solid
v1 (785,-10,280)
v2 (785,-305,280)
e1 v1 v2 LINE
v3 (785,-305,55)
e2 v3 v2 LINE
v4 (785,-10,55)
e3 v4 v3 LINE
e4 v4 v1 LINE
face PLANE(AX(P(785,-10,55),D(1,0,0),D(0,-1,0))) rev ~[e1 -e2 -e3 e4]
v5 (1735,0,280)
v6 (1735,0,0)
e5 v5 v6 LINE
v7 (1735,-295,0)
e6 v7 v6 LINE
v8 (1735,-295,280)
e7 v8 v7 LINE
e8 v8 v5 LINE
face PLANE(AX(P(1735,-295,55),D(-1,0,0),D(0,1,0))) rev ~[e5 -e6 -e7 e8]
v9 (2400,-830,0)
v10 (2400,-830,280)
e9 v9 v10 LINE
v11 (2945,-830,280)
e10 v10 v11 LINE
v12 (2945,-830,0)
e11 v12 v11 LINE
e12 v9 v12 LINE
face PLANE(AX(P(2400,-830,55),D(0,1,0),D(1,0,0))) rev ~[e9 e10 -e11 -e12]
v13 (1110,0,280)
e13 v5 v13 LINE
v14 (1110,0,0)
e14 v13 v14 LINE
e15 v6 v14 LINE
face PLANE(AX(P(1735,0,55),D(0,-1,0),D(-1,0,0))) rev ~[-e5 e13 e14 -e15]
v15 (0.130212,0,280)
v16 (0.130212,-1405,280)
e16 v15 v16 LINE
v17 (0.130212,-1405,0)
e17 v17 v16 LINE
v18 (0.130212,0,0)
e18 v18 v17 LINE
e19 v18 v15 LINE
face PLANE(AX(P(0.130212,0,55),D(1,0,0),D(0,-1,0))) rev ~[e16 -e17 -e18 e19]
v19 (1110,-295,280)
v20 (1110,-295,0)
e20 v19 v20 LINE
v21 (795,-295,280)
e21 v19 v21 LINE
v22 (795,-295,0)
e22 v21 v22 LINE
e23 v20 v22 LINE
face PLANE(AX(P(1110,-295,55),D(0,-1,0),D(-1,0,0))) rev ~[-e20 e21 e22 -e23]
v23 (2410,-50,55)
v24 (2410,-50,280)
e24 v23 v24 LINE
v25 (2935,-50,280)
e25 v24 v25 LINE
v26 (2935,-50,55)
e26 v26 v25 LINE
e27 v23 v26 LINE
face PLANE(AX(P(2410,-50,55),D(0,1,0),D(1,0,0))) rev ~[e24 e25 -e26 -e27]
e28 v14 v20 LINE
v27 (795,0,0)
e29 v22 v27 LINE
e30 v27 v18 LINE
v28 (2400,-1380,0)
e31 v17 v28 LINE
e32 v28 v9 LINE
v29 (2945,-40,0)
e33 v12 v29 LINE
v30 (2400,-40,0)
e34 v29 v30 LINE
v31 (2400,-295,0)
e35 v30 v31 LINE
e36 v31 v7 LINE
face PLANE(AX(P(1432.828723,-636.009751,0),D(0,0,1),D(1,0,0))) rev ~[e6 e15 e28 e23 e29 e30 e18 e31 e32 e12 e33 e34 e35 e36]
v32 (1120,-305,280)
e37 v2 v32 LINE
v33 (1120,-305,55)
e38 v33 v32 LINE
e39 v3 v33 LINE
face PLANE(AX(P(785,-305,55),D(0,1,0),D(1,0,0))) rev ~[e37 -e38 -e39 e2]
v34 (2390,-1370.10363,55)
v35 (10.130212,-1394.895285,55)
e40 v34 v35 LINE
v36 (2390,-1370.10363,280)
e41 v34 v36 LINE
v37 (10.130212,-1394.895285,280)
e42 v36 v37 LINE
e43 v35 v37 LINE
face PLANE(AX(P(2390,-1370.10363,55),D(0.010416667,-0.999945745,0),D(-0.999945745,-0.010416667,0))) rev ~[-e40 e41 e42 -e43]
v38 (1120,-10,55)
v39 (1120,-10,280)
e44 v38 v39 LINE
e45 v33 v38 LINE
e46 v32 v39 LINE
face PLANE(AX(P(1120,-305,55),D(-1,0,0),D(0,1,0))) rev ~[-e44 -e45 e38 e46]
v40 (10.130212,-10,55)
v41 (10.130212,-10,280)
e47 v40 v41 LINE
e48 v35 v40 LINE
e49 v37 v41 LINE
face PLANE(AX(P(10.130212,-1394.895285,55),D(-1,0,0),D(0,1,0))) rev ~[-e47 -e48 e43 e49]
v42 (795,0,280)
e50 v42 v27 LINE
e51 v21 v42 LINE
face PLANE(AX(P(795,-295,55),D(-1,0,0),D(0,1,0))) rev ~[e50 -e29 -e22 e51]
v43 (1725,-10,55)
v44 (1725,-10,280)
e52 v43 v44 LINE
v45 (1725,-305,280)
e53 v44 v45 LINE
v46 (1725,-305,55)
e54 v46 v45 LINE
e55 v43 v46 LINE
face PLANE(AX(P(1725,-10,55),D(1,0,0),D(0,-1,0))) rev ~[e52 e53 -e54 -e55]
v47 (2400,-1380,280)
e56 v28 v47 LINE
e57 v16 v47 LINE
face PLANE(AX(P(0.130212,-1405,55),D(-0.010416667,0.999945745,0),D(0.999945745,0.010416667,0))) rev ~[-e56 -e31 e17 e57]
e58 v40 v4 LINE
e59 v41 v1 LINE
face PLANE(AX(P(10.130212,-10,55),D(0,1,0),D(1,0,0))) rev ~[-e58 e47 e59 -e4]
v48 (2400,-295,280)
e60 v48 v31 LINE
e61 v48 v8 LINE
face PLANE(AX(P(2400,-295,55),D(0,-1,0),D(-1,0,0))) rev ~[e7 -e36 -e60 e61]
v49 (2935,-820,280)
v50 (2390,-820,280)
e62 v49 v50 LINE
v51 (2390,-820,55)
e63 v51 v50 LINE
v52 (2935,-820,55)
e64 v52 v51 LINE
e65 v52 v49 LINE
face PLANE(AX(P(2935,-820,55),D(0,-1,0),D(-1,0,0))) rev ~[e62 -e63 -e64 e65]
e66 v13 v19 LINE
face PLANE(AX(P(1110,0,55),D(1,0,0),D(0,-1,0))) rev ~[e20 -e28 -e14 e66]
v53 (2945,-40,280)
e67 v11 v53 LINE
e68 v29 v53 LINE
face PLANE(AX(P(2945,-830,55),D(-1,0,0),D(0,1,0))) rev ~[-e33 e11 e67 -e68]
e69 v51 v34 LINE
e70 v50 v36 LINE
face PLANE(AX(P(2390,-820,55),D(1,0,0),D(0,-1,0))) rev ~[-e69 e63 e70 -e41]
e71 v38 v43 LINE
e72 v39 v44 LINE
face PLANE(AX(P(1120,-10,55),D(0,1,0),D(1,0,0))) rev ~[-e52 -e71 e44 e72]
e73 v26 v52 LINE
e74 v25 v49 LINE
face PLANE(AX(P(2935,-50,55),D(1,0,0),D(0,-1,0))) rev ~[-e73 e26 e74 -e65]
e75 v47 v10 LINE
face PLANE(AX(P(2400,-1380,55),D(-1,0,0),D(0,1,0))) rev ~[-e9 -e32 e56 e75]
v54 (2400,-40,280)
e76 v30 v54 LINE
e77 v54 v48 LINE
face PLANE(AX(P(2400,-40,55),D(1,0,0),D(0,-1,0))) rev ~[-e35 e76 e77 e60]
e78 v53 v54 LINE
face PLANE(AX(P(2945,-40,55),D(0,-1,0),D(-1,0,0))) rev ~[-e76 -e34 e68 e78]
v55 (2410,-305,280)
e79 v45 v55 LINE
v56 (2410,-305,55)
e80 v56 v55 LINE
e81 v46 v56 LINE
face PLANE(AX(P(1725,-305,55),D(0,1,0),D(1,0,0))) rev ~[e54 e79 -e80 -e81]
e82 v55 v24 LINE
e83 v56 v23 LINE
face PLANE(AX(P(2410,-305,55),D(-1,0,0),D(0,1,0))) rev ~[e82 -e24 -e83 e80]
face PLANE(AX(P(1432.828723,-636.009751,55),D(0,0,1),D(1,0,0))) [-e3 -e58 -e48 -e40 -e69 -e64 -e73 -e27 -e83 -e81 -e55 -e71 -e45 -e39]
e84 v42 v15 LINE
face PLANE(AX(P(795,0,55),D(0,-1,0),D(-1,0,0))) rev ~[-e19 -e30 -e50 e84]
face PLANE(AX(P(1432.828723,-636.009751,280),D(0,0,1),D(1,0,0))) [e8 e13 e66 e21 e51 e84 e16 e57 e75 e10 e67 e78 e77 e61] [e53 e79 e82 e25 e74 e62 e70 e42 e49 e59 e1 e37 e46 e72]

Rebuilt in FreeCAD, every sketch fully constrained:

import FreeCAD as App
import Part
import Sketcher

V = App.Vector
Q = App.Units.Quantity

doc = App.newDocument("Part")
body = doc.addObject("PartDesign::Body", "Body")

# Sketch on XY plane
sketch1 = body.newObject("Sketcher::SketchObject", "Sketch")
sketch1.AttachmentSupport = (doc.getObject("XY_Plane"), [""])
sketch1.MapMode = "FlatFace"
sketch1.addGeometry([
    Part.LineSegment(V(795, 0, 0), V(0.130212, 0, 0)),  # 0
    Part.LineSegment(V(0.130212, 0, 0), V(0.130212, -1405, 0)),  # 1
    Part.LineSegment(V(0.130212, -1405, 0), V(2400, -1380, 0)),  # 2
    Part.LineSegment(V(2400, -1380, 0), V(2400, -830, 0)),  # 3
    Part.LineSegment(V(2400, -830, 0), V(2945, -830, 0)),  # 4
    Part.LineSegment(V(2945, -830, 0), V(2945, -40, 0)),  # 5
    Part.LineSegment(V(2945, -40, 0), V(2400, -40, 0)),  # 6
    Part.LineSegment(V(2400, -40, 0), V(2400, -295, 0)),  # 7
    Part.LineSegment(V(2400, -295, 0), V(1735, -295, 0)),  # 8
    Part.LineSegment(V(1735, -295, 0), V(1735, 0, 0)),  # 9
    Part.LineSegment(V(1735, 0, 0), V(1110, 0, 0)),  # 10
    Part.LineSegment(V(1110, 0, 0), V(1110, -295, 0)),  # 11
    Part.LineSegment(V(1110, -295, 0), V(795, -295, 0)),  # 12
    Part.LineSegment(V(795, -295, 0), V(795, 0, 0)),  # 13
], False)
sketch1.addConstraint([
    Sketcher.Constraint("Coincident", 0, 2, 1, 1),
    Sketcher.Constraint("Coincident", 1, 2, 2, 1),
    Sketcher.Constraint("Coincident", 2, 2, 3, 1),
    Sketcher.Constraint("Coincident", 3, 2, 4, 1),
    Sketcher.Constraint("Coincident", 4, 2, 5, 1),
    Sketcher.Constraint("Coincident", 5, 2, 6, 1),
    Sketcher.Constraint("Coincident", 6, 2, 7, 1),
    Sketcher.Constraint("Coincident", 7, 2, 8, 1),
    Sketcher.Constraint("Coincident", 8, 2, 9, 1),
    Sketcher.Constraint("Coincident", 9, 2, 10, 1),
    Sketcher.Constraint("Coincident", 10, 2, 11, 1),
    Sketcher.Constraint("Coincident", 11, 2, 12, 1),
    Sketcher.Constraint("Coincident", 12, 2, 13, 1),
    Sketcher.Constraint("Coincident", 13, 2, 0, 1),
    Sketcher.Constraint("Horizontal", 0),
    Sketcher.Constraint("Vertical", 1),
    Sketcher.Constraint("Vertical", 3),
    Sketcher.Constraint("Horizontal", 4),
    Sketcher.Constraint("Vertical", 5),
    Sketcher.Constraint("Horizontal", 6),
    Sketcher.Constraint("Vertical", 7),
    Sketcher.Constraint("Horizontal", 8),
    Sketcher.Constraint("Vertical", 9),
    Sketcher.Constraint("Horizontal", 10),
    Sketcher.Constraint("Vertical", 11),
    Sketcher.Constraint("Horizontal", 12),
    Sketcher.Constraint("Vertical", 13),
    Sketcher.Constraint("PointOnObject", 0, 2, -1),
    Sketcher.Constraint("PointOnObject", 9, 2, -1),
    Sketcher.Constraint("Horizontal", 8, 2, 11, 2),
    Sketcher.Constraint("Vertical", 3, 2, 6, 2),
    Sketcher.Constraint("DistanceX", 4, 1, 4, 2, Q("545 mm")),
    Sketcher.Constraint("DistanceX", 8, 2, 8, 1, Q("665 mm")),
    Sketcher.Constraint("DistanceX", 10, 2, 10, 1, Q("625 mm")),
    Sketcher.Constraint("DistanceX", 12, 2, 12, 1, Q("315 mm")),
    Sketcher.Constraint("DistanceY", 1, 2, 1, 1, Q("1405 mm")),
    Sketcher.Constraint("DistanceY", 3, 1, 3, 2, Q("550 mm")),
    Sketcher.Constraint("DistanceY", 5, 1, 5, 2, Q("790 mm")),
    Sketcher.Constraint("DistanceY", 7, 2, 7, 1, Q("255 mm")),
    Sketcher.Constraint("DistanceY", 9, 1, 9, 2, Q("295 mm")),
    Sketcher.Constraint("Distance", 2, Q("2400 mm")),
    Sketcher.Constraint("DistanceX", -1, 1, 2, 2, Q("2400 mm")),
])
pad1 = body.newObject("PartDesign::Pad", "Pad")
pad1.Profile = sketch1
pad1.Length = 55

# Sketch on XY plane
sketch2 = body.newObject("Sketcher::SketchObject", "Sketch001")
sketch2.AttachmentSupport = (doc.getObject("XY_Plane"), [""])
sketch2.MapMode = "FlatFace"
sketch2.AttachmentOffset = App.Placement(V(0, 0, 55), App.Rotation())
sketch2.addGeometry([
    Part.LineSegment(V(795, 0, 0), V(0.130212, 0, 0)),  # 0
    Part.LineSegment(V(0.130212, 0, 0), V(0.130212, -1405, 0)),  # 1
    Part.LineSegment(V(0.130212, -1405, 0), V(2400, -1380, 0)),  # 2
    Part.LineSegment(V(2400, -1380, 0), V(2400, -830, 0)),  # 3
    Part.LineSegment(V(2400, -830, 0), V(2945, -830, 0)),  # 4
    Part.LineSegment(V(2945, -830, 0), V(2945, -40, 0)),  # 5
    Part.LineSegment(V(2945, -40, 0), V(2400, -40, 0)),  # 6
    Part.LineSegment(V(2400, -40, 0), V(2400, -295, 0)),  # 7
    Part.LineSegment(V(2400, -295, 0), V(1735, -295, 0)),  # 8
    Part.LineSegment(V(1735, -295, 0), V(1735, 0, 0)),  # 9
    Part.LineSegment(V(1735, 0, 0), V(1110, 0, 0)),  # 10
    Part.LineSegment(V(1110, 0, 0), V(1110, -295, 0)),  # 11
    Part.LineSegment(V(1110, -295, 0), V(795, -295, 0)),  # 12
    Part.LineSegment(V(795, -295, 0), V(795, 0, 0)),  # 13
    Part.LineSegment(V(10.130212, -1394.895285, 0), V(10.130212, -10, 0)),  # 14
    Part.LineSegment(V(10.130212, -10, 0), V(785, -10, 0)),  # 15
    Part.LineSegment(V(785, -10, 0), V(785, -305, 0)),  # 16
    Part.LineSegment(V(785, -305, 0), V(1120, -305, 0)),  # 17
    Part.LineSegment(V(1120, -305, 0), V(1120, -10, 0)),  # 18
    Part.LineSegment(V(1120, -10, 0), V(1725, -10, 0)),  # 19
    Part.LineSegment(V(1725, -10, 0), V(1725, -305, 0)),  # 20
    Part.LineSegment(V(1725, -305, 0), V(2410, -305, 0)),  # 21
    Part.LineSegment(V(2410, -305, 0), V(2410, -50, 0)),  # 22
    Part.LineSegment(V(2410, -50, 0), V(2935, -50, 0)),  # 23
    Part.LineSegment(V(2935, -50, 0), V(2935, -820, 0)),  # 24
    Part.LineSegment(V(2935, -820, 0), V(2390, -820, 0)),  # 25
    Part.LineSegment(V(2390, -820, 0), V(2390, -1370.10363, 0)),  # 26
    Part.LineSegment(V(2390, -1370.10363, 0), V(10.130212, -1394.895285, 0)),  # 27
], False)
sketch2.addConstraint([
    Sketcher.Constraint("Coincident", 0, 2, 1, 1),
    Sketcher.Constraint("Coincident", 1, 2, 2, 1),
    Sketcher.Constraint("Coincident", 2, 2, 3, 1),
    Sketcher.Constraint("Coincident", 3, 2, 4, 1),
    Sketcher.Constraint("Coincident", 4, 2, 5, 1),
    Sketcher.Constraint("Coincident", 5, 2, 6, 1),
    Sketcher.Constraint("Coincident", 6, 2, 7, 1),
    Sketcher.Constraint("Coincident", 7, 2, 8, 1),
    Sketcher.Constraint("Coincident", 8, 2, 9, 1),
    Sketcher.Constraint("Coincident", 9, 2, 10, 1),
    Sketcher.Constraint("Coincident", 10, 2, 11, 1),
    Sketcher.Constraint("Coincident", 11, 2, 12, 1),
    Sketcher.Constraint("Coincident", 12, 2, 13, 1),
    Sketcher.Constraint("Coincident", 13, 2, 0, 1),
    Sketcher.Constraint("Coincident", 14, 2, 15, 1),
    Sketcher.Constraint("Coincident", 15, 2, 16, 1),
    Sketcher.Constraint("Coincident", 16, 2, 17, 1),
    Sketcher.Constraint("Coincident", 17, 2, 18, 1),
    Sketcher.Constraint("Coincident", 18, 2, 19, 1),
    Sketcher.Constraint("Coincident", 19, 2, 20, 1),
    Sketcher.Constraint("Coincident", 20, 2, 21, 1),
    Sketcher.Constraint("Coincident", 21, 2, 22, 1),
    Sketcher.Constraint("Coincident", 22, 2, 23, 1),
    Sketcher.Constraint("Coincident", 23, 2, 24, 1),
    Sketcher.Constraint("Coincident", 24, 2, 25, 1),
    Sketcher.Constraint("Coincident", 25, 2, 26, 1),
    Sketcher.Constraint("Coincident", 26, 2, 27, 1),
    Sketcher.Constraint("Coincident", 27, 2, 14, 1),
    Sketcher.Constraint("Horizontal", 0),
    Sketcher.Constraint("Vertical", 1),
    Sketcher.Constraint("Vertical", 3),
    Sketcher.Constraint("Horizontal", 4),
    Sketcher.Constraint("Vertical", 5),
    Sketcher.Constraint("Horizontal", 6),
    Sketcher.Constraint("Vertical", 7),
    Sketcher.Constraint("Horizontal", 8),
    Sketcher.Constraint("Vertical", 9),
    Sketcher.Constraint("Horizontal", 10),
    Sketcher.Constraint("Vertical", 11),
    Sketcher.Constraint("Horizontal", 12),
    Sketcher.Constraint("Vertical", 13),
    Sketcher.Constraint("Vertical", 14),
    Sketcher.Constraint("Horizontal", 15),
    Sketcher.Constraint("Vertical", 16),
    Sketcher.Constraint("Horizontal", 17),
    Sketcher.Constraint("Vertical", 18),
    Sketcher.Constraint("Horizontal", 19),
    Sketcher.Constraint("Vertical", 20),
    Sketcher.Constraint("Horizontal", 21),
    Sketcher.Constraint("Vertical", 22),
    Sketcher.Constraint("Horizontal", 23),
    Sketcher.Constraint("Vertical", 24),
    Sketcher.Constraint("Horizontal", 25),
    Sketcher.Constraint("Vertical", 26),
    Sketcher.Constraint("PointOnObject", 0, 2, -1),
    Sketcher.Constraint("PointOnObject", 9, 2, -1),
    Sketcher.Constraint("Parallel", 2, 27),
    Sketcher.Constraint("Horizontal", 8, 2, 11, 2),
    Sketcher.Constraint("Horizontal", 15, 2, 18, 2),
    Sketcher.Constraint("Horizontal", 17, 2, 20, 2),
    Sketcher.Constraint("Vertical", 3, 2, 6, 2),
    Sketcher.Constraint("Equal", 6, 25),
    Sketcher.Constraint("Equal", 13, 16),
    Sketcher.Constraint("Equal", 7, 22),
    Sketcher.Constraint("DistanceX", 4, 1, 4, 2, Q("545 mm")),
    Sketcher.Constraint("DistanceX", 8, 2, 8, 1, Q("665 mm")),
    Sketcher.Constraint("DistanceX", 10, 2, 10, 1, Q("625 mm")),
    Sketcher.Constraint("DistanceX", 12, 2, 12, 1, Q("315 mm")),
    Sketcher.Constraint("DistanceX", 17, 1, 17, 2, Q("335 mm")),
    Sketcher.Constraint("DistanceX", 19, 1, 19, 2, Q("605 mm")),
    Sketcher.Constraint("DistanceX", 21, 1, 21, 2, Q("685 mm")),
    Sketcher.Constraint("DistanceX", 23, 1, 23, 2, Q("525 mm")),
    Sketcher.Constraint("DistanceY", 1, 2, 1, 1, Q("1405 mm")),
    Sketcher.Constraint("DistanceY", 3, 1, 3, 2, Q("550 mm")),
    Sketcher.Constraint("DistanceY", 5, 1, 5, 2, Q("790 mm")),
    Sketcher.Constraint("DistanceY", 7, 2, 7, 1, Q("255 mm")),
    Sketcher.Constraint("DistanceY", 9, 1, 9, 2, Q("295 mm")),
    Sketcher.Constraint("DistanceY", 24, 2, 24, 1, Q("770 mm")),
    Sketcher.Constraint("Distance", 2, Q("2400 mm")),
    Sketcher.Constraint("DistanceX", -1, 1, 2, 2, Q("2400 mm")),
    Sketcher.Constraint("DistanceY", 14, 2, -1, 1, Q("10 mm")),
    Sketcher.Constraint("DistanceX", -1, 1, 15, 2, Q("785 mm")),
    Sketcher.Constraint("DistanceX", 0, 2, 14, 2, Q("10 mm")),
    Sketcher.Constraint("DistanceY", 26, 2, 26, 1, Q("550.10363 mm")),
])
pad2 = body.newObject("PartDesign::Pad", "Pad001")
pad2.Profile = sketch2
pad2.Length = 225

doc.recompute()
